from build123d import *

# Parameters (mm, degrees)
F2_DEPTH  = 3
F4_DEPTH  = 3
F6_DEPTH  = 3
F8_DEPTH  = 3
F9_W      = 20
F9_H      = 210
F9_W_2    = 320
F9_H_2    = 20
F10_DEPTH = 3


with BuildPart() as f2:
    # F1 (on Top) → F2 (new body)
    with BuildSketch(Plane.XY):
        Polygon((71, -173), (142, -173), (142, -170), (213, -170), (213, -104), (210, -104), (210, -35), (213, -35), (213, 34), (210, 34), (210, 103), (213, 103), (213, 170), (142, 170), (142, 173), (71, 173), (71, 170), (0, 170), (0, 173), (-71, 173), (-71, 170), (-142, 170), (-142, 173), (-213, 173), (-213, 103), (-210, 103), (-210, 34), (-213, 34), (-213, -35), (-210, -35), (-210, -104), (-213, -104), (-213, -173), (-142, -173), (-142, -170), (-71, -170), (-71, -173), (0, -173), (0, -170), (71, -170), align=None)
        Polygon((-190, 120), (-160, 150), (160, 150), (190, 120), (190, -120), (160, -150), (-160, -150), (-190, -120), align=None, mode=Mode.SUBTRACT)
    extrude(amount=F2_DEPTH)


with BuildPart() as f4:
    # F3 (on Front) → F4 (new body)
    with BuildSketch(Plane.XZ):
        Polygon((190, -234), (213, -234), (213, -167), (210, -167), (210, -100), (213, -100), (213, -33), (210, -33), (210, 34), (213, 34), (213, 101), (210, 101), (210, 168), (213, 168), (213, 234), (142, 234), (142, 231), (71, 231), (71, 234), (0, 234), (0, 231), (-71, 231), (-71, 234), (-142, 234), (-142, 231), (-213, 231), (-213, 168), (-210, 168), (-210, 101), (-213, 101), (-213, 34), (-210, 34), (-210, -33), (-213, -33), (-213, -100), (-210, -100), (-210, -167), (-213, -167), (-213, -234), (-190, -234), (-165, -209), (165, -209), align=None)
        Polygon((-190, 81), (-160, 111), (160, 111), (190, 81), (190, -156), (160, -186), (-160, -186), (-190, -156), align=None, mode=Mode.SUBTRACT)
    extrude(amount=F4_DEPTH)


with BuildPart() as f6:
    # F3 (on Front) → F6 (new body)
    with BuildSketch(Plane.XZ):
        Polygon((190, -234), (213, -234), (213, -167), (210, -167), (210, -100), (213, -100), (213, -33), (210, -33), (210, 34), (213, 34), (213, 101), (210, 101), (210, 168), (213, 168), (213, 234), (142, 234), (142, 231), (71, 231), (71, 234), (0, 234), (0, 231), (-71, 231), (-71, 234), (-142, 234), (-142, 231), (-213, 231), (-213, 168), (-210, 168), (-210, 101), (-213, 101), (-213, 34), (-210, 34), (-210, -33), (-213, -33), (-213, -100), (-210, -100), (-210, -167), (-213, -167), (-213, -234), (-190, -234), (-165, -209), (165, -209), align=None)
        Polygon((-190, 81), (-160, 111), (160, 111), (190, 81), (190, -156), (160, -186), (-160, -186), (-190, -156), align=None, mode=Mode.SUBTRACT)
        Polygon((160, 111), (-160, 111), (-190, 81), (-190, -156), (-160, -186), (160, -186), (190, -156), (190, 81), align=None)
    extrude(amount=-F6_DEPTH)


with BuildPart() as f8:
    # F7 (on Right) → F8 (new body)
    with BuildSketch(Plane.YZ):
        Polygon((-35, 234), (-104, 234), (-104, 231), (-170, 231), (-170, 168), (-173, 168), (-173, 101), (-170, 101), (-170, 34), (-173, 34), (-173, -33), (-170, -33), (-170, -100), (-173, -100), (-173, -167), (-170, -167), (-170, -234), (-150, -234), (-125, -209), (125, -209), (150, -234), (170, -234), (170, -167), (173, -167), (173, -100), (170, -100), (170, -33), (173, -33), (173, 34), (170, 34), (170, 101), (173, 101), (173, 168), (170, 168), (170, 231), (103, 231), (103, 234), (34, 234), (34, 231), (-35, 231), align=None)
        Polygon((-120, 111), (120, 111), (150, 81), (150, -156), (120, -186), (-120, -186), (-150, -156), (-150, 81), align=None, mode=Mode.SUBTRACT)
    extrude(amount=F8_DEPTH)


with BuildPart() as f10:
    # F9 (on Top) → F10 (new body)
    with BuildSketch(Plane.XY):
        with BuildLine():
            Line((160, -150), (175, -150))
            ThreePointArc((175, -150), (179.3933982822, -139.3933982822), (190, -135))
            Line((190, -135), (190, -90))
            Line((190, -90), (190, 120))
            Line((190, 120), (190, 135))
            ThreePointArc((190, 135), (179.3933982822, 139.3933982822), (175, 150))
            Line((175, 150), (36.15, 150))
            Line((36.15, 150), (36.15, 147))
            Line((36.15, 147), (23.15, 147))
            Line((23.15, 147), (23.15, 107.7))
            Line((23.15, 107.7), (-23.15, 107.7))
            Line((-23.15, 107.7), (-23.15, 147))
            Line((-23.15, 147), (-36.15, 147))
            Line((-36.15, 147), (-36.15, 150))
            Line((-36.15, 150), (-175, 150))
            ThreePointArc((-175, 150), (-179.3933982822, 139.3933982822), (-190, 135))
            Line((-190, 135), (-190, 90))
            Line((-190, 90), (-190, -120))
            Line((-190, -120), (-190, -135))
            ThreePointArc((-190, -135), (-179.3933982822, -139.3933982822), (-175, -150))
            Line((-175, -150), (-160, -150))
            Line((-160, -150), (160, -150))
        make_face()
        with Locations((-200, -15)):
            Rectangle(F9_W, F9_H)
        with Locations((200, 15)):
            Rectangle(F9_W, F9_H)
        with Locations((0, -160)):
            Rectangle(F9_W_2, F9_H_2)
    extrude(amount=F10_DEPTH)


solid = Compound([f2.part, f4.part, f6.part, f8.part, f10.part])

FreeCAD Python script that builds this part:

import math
import FreeCAD as App
import Part
import Sketcher
from FreeCAD import Vector
Q = App.Units.Quantity

doc = App.newDocument("Part")
body = doc.addObject("PartDesign::Body", "Body")

sketch1 = body.newObject("Sketcher::SketchObject", "Sketch")
sketch1.AttachmentSupport = (doc.getObject("XY_Plane"), [""])
sketch1.MapMode = "FlatFace"
sketch1.addGeometry([
    Part.LineSegment(Vector(71, -173, 0), Vector(142, -173, 0)),
    Part.LineSegment(Vector(142, -173, 0), Vector(142, -170, 0)),
    Part.LineSegment(Vector(142, -170, 0), Vector(213, -170, 0)),
    Part.LineSegment(Vector(213, -170, 0), Vector(213, -104, 0)),
    Part.LineSegment(Vector(213, -104, 0), Vector(210, -104, 0)),
    Part.LineSegment(Vector(210, -104, 0), Vector(210, -35, 0)),
    Part.LineSegment(Vector(210, -35, 0), Vector(213, -35, 0)),
    Part.LineSegment(Vector(213, -35, 0), Vector(213, 34, 0)),
    Part.LineSegment(Vector(213, 34, 0), Vector(210, 34, 0)),
    Part.LineSegment(Vector(210, 34, 0), Vector(210, 103, 0)),
    Part.LineSegment(Vector(210, 103, 0), Vector(213, 103, 0)),
    Part.LineSegment(Vector(213, 103, 0), Vector(213, 170, 0)),
    Part.LineSegment(Vector(213, 170, 0), Vector(142, 170, 0)),
    Part.LineSegment(Vector(142, 170, 0), Vector(142, 173, 0)),
    Part.LineSegment(Vector(142, 173, 0), Vector(71, 173, 0)),
    Part.LineSegment(Vector(71, 173, 0), Vector(71, 170, 0)),
    Part.LineSegment(Vector(71, 170, 0), Vector(0, 170, 0)),
    Part.LineSegment(Vector(0, 170, 0), Vector(0, 173, 0)),
    Part.LineSegment(Vector(0, 173, 0), Vector(-71, 173, 0)),
    Part.LineSegment(Vector(-71, 173, 0), Vector(-71, 170, 0)),
    Part.LineSegment(Vector(-71, 170, 0), Vector(-142, 170, 0)),
    Part.LineSegment(Vector(-142, 170, 0), Vector(-142, 173, 0)),
    Part.LineSegment(Vector(-142, 173, 0), Vector(-213, 173, 0)),
    Part.LineSegment(Vector(-213, 173, 0), Vector(-213, 103, 0)),
    Part.LineSegment(Vector(-213, 103, 0), Vector(-210, 103, 0)),
    Part.LineSegment(Vector(-210, 103, 0), Vector(-210, 34, 0)),
    Part.LineSegment(Vector(-210, 34, 0), Vector(-213, 34, 0)),
    Part.LineSegment(Vector(-213, 34, 0), Vector(-213, -35, 0)),
    Part.LineSegment(Vector(-213, -35, 0), Vector(-210, -35, 0)),
    Part.LineSegment(Vector(-210, -35, 0), Vector(-210, -104, 0)),
    Part.LineSegment(Vector(-210, -104, 0), Vector(-213, -104, 0)),
    Part.LineSegment(Vector(-213, -104, 0), Vector(-213, -173, 0)),
    Part.LineSegment(Vector(-213, -173, 0), Vector(-142, -173, 0)),
    Part.LineSegment(Vector(-142, -173, 0), Vector(-142, -170, 0)),
    Part.LineSegment(Vector(-142, -170, 0), Vector(-71, -170, 0)),
    Part.LineSegment(Vector(-71, -170, 0), Vector(-71, -173, 0)),
    Part.LineSegment(Vector(-71, -173, 0), Vector(0, -173, 0)),
    Part.LineSegment(Vector(0, -173, 0), Vector(0, -170, 0)),
    Part.LineSegment(Vector(0, -170, 0), Vector(71, -170, 0)),
    Part.LineSegment(Vector(71, -170, 0), Vector(71, -173, 0)),
    Part.LineSegment(Vector(-190, -120, 0), Vector(-190, 120, 0)),
    Part.LineSegment(Vector(-190, 120, 0), Vector(-160, 150, 0)),
    Part.LineSegment(Vector(-160, 150, 0), Vector(160, 150, 0)),
    Part.LineSegment(Vector(160, 150, 0), Vector(190, 120, 0)),
    Part.LineSegment(Vector(190, 120, 0), Vector(190, -120, 0)),
    Part.LineSegment(Vector(190, -120, 0), Vector(160, -150, 0)),
    Part.LineSegment(Vector(160, -150, 0), Vector(-160, -150, 0)),
    Part.LineSegment(Vector(-160, -150, 0), Vector(-190, -120, 0)),
], False)
sketch1.addConstraint([
    Sketcher.Constraint("Coincident", 0, 2, 1, 1),
    Sketcher.Constraint("Coincident", 1, 2, 2, 1),
    Sketcher.Constraint("Coincident", 2, 2, 3, 1),
    Sketcher.Constraint("Coincident", 3, 2, 4, 1),
    Sketcher.Constraint("Coincident", 4, 2, 5, 1),
    Sketcher.Constraint("Coincident", 5, 2, 6, 1),
    Sketcher.Constraint("Coincident", 6, 2, 7, 1),
    Sketcher.Constraint("Coincident", 7, 2, 8, 1),
    Sketcher.Constraint("Coincident", 8, 2, 9, 1),
    Sketcher.Constraint("Coincident", 9, 2, 10, 1),
    Sketcher.Constraint("Coincident", 10, 2, 11, 1),
    Sketcher.Constraint("Coincident", 11, 2, 12, 1),
    Sketcher.Constraint("Coincident", 12, 2, 13, 1),
    Sketcher.Constraint("Coincident", 13, 2, 14, 1),
    Sketcher.Constraint("Coincident", 14, 2, 15, 1),
    Sketcher.Constraint("Coincident", 15, 2, 16, 1),
    Sketcher.Constraint("Coincident", 16, 2, 17, 1),
    Sketcher.Constraint("Coincident", 17, 2, 18, 1),
    Sketcher.Constraint("Coincident", 18, 2, 19, 1),
    Sketcher.Constraint("Coincident", 19, 2, 20, 1),
    Sketcher.Constraint("Coincident", 20, 2, 21, 1),
    Sketcher.Constraint("Coincident", 21, 2, 22, 1),
    Sketcher.Constraint("Coincident", 22, 2, 23, 1),
    Sketcher.Constraint("Coincident", 23, 2, 24, 1),
    Sketcher.Constraint("Coincident", 24, 2, 25, 1),
    Sketcher.Constraint("Coincident", 25, 2, 26, 1),
    Sketcher.Constraint("Coincident", 26, 2, 27, 1),
    Sketcher.Constraint("Coincident", 27, 2, 28, 1),
    Sketcher.Constraint("Coincident", 28, 2, 29, 1),
    Sketcher.Constraint("Coincident", 29, 2, 30, 1),
    Sketcher.Constraint("Coincident", 30, 2, 31, 1),
    Sketcher.Constraint("Coincident", 31, 2, 32, 1),
    Sketcher.Constraint("Coincident", 32, 2, 33, 1),
    Sketcher.Constraint("Coincident", 33, 2, 34, 1),
    Sketcher.Constraint("Coincident", 34, 2, 35, 1),
    Sketcher.Constraint("Coincident", 35, 2, 36, 1),
    Sketcher.Constraint("Coincident", 36, 2, 37, 1),
    Sketcher.Constraint("Coincident", 37, 2, 38, 1),
    Sketcher.Constraint("Coincident", 38, 2, 39, 1),
    Sketcher.Constraint("Coincident", 39, 2, 0, 1),
    Sketcher.Constraint("Coincident", 40, 2, 41, 1),
    Sketcher.Constraint("Coincident", 41, 2, 42, 1),
    Sketcher.Constraint("Coincident", 42, 2, 43, 1),
    Sketcher.Constraint("Coincident", 43, 2, 44, 1),
    Sketcher.Constraint("Coincident", 44, 2, 45, 1),
    Sketcher.Constraint("Coincident", 45, 2, 46, 1),
    Sketcher.Constraint("Coincident", 46, 2, 47, 1),
    Sketcher.Constraint("Coincident", 47, 2, 40, 1),
    Sketcher.Constraint("Horizontal", 0),
    Sketcher.Constraint("Vertical", 1),
    Sketcher.Constraint("Horizontal", 2),
    Sketcher.Constraint("Vertical", 3),
    Sketcher.Constraint("Horizontal", 4),
    Sketcher.Constraint("Vertical", 5),
    Sketcher.Constraint("Horizontal", 6),
    Sketcher.Constraint("Vertical", 7),
    Sketcher.Constraint("Horizontal", 8),
    Sketcher.Constraint("Vertical", 9),
    Sketcher.Constraint("Horizontal", 10),
    Sketcher.Constraint("Vertical", 11),
    Sketcher.Constraint("Horizontal", 12),
    Sketcher.Constraint("Vertical", 13),
    Sketcher.Constraint("Horizontal", 14),
    Sketcher.Constraint("Vertical", 15),
    Sketcher.Constraint("Horizontal", 16),
    Sketcher.Constraint("Vertical", 17),
    Sketcher.Constraint("Horizontal", 18),
    Sketcher.Constraint("Vertical", 19),
    Sketcher.Constraint("Horizontal", 20),
    Sketcher.Constraint("Vertical", 21),
    Sketcher.Constraint("Horizontal", 22),
    Sketcher.Constraint("Vertical", 23),
    Sketcher.Constraint("Horizontal", 24),
    Sketcher.Constraint("Vertical", 25),
    Sketcher.Constraint("Horizontal", 26),
    Sketcher.Constraint("Vertical", 27),
    Sketcher.Constraint("Horizontal", 28),
    Sketcher.Constraint("Vertical", 29),
    Sketcher.Constraint("Horizontal", 30),
    Sketcher.Constraint("Vertical", 31),
    Sketcher.Constraint("Horizontal", 32),
    Sketcher.Constraint("Vertical", 33),
    Sketcher.Constraint("Horizontal", 34),
    Sketcher.Constraint("Vertical", 35),
    Sketcher.Constraint("Horizontal", 36),
    Sketcher.Constraint("Vertical", 37),
    Sketcher.Constraint("Horizontal", 38),
    Sketcher.Constraint("Vertical", 39),
    Sketcher.Constraint("Vertical", 40),
    Sketcher.Constraint("Horizontal", 42),
    Sketcher.Constraint("Vertical", 44),
    Sketcher.Constraint("Horizontal", 46),
    Sketcher.Constraint("Symmetric", 1, 2, 20, 2, -1, 1),
    Sketcher.Constraint("Symmetric", 13, 2, 32, 2, -1, 1),
    Sketcher.Constraint("Symmetric", 15, 2, 34, 2, -1, 1),
    Sketcher.Constraint("Symmetric", 17, 2, 36, 2, -1, 1),
    Sketcher.Constraint("Symmetric", 19, 2, 38, 2, -1, 1),
    Sketcher.Constraint("Symmetric", 40, 2, 44, 2, -1, 1),
    Sketcher.Constraint("Symmetric", 41, 2, 45, 2, -1, 1),
    Sketcher.Constraint("Symmetric", 14, 2, 18, 2, -2),
    Sketcher.Constraint("Symmetric", 12, 2, 20, 2, -2),
    Sketcher.Constraint("Symmetric", 10, 2, 23, 2, -2),
    Sketcher.Constraint("Symmetric", 8, 2, 25, 2, -2),
    Sketcher.Constraint("Symmetric", 6, 2, 27, 2, -2),
    Sketcher.Constraint("Symmetric", 4, 2, 29, 2, -2),
    Sketcher.Constraint("Symmetric", 22, 2, 31, 2, -1),
    Sketcher.Constraint("Symmetric", 16, 2, 37, 2, -1),
    Sketcher.Constraint("Perpendicular", 41, 43),
    Sketcher.Constraint("Perpendicular", 45, 47),
    Sketcher.Constraint("Horizontal", 0, 2, 31, 2),
    Sketcher.Constraint("Horizontal", 40, 2, 43, 2),
    Sketcher.Constraint("Horizontal", 44, 2, 47, 2),
    Sketcher.Constraint("Vertical", 3, 2, 6, 2),
    Sketcher.Constraint("Vertical", 5, 2, 8, 2),
    Sketcher.Constraint("Vertical", 7, 2, 10, 2),
    Sketcher.Constraint("Vertical", 42, 2, 45, 2),
    Sketcher.Constraint("Equal", 0, 2),
    Sketcher.Constraint("Equal", 14, 16),
    Sketcher.Constraint("Equal", 30, 1),
    Sketcher.Constraint("Equal", 5, 7),
    Sketcher.Constraint("Equal", 7, 9),
    Sketcher.Constraint("Equal", 29, 31),
    Sketcher.Constraint("DistanceX", 0, 1, 0, 2, Q("71 mm")),
    Sketcher.Constraint("DistanceX", 4, 2, 4, 1, Q("3 mm")),
    Sketcher.Constraint("DistanceX", 42, 1, 42, 2, Q("320 mm")),
    Sketcher.Constraint("DistanceY", 3, 1, 3, 2, Q("66 mm")),
    Sketcher.Constraint("DistanceY", 11, 1, 11, 2, Q("67 mm")),
    Sketcher.Constraint("DistanceY", 40, 1, 40, 2, Q("240 mm")),
    Sketcher.Constraint("DistanceX", 40, 2, -1, 1, Q("190 mm")),
])
pad1 = body.newObject("PartDesign::Pad", "Pad")
pad1.Profile = sketch1
pad1.Length = 3
body2 = doc.addObject("PartDesign::Body", "Body001")

sketch2 = body2.newObject("Sketcher::SketchObject", "Sketch001")
sketch2.AttachmentSupport = (doc.getObject("XZ_Plane001"), [""])
sketch2.MapMode = "FlatFace"
sketch2.addGeometry([
    Part.LineSegment(Vector(190, -234, 0), Vector(213, -234, 0)),
    Part.LineSegment(Vector(213, -234, 0), Vector(213, -167, 0)),
    Part.LineSegment(Vector(213, -167, 0), Vector(210, -167, 0)),
    Part.LineSegment(Vector(210, -167, 0), Vector(210, -100, 0)),
    Part.LineSegment(Vector(210, -100, 0), Vector(213, -100, 0)),
    Part.LineSegment(Vector(213, -100, 0), Vector(213, -33, 0)),
    Part.LineSegment(Vector(213, -33, 0), Vector(210, -33, 0)),
    Part.LineSegment(Vector(210, -33, 0), Vector(210, 34, 0)),
    Part.LineSegment(Vector(210, 34, 0), Vector(213, 34, 0)),
    Part.LineSegment(Vector(213, 34, 0), Vector(213, 101, 0)),
    Part.LineSegment(Vector(213, 101, 0), Vector(210, 101, 0)),
    Part.LineSegment(Vector(210, 101, 0), Vector(210, 168, 0)),
    Part.LineSegment(Vector(210, 168, 0), Vector(213, 168, 0)),
    Part.LineSegment(Vector(213, 168, 0), Vector(213, 234, 0)),
    Part.LineSegment(Vector(213, 234, 0), Vector(142, 234, 0)),
    Part.LineSegment(Vector(142, 234, 0), Vector(142, 231, 0)),
    Part.LineSegment(Vector(142, 231, 0), Vector(71, 231, 0)),
    Part.LineSegment(Vector(71, 231, 0), Vector(71, 234, 0)),
    Part.LineSegment(Vector(71, 234, 0), Vector(0, 234, 0)),
    Part.LineSegment(Vector(0, 234, 0), Vector(0, 231, 0)),
    Part.LineSegment(Vector(0, 231, 0), Vector(-71, 231, 0)),
    Part.LineSegment(Vector(-71, 231, 0), Vector(-71, 234, 0)),
    Part.LineSegment(Vector(-71, 234, 0), Vector(-142, 234, 0)),
    Part.LineSegment(Vector(-142, 234, 0), Vector(-142, 231, 0)),
    Part.LineSegment(Vector(-142, 231, 0), Vector(-213, 231, 0)),
    Part.LineSegment(Vector(-213, 231, 0), Vector(-213, 168, 0)),
    Part.LineSegment(Vector(-213, 168, 0), Vector(-210, 168, 0)),
    Part.LineSegment(Vector(-210, 168, 0), Vector(-210, 101, 0)),
    Part.LineSegment(Vector(-210, 101, 0), Vector(-213, 101, 0)),
    Part.LineSegment(Vector(-213, 101, 0), Vector(-213, 34, 0)),
    Part.LineSegment(Vector(-213, 34, 0), Vector(-210, 34, 0)),
    Part.LineSegment(Vector(-210, 34, 0), Vector(-210, -33, 0)),
    Part.LineSegment(Vector(-210, -33, 0), Vector(-213, -33, 0)),
    Part.LineSegment(Vector(-213, -33, 0), Vector(-213, -100, 0)),
    Part.LineSegment(Vector(-213, -100, 0), Vector(-210, -100, 0)),
    Part.LineSegment(Vector(-210, -100, 0), Vector(-210, -167, 0)),
    Part.LineSegment(Vector(-210, -167, 0), Vector(-213, -167, 0)),
    Part.LineSegment(Vector(-213, -167, 0), Vector(-213, -234, 0)),
    Part.LineSegment(Vector(-213, -234, 0), Vector(-190, -234, 0)),
    Part.LineSegment(Vector(-190, -234, 0), Vector(-165, -209, 0)),
    Part.LineSegment(Vector(-165, -209, 0), Vector(165, -209, 0)),
    Part.LineSegment(Vector(165, -209, 0), Vector(190, -234, 0)),
    Part.LineSegment(Vector(-190, -156, 0), Vector(-190, 81, 0)),
    Part.LineSegment(Vector(-190, 81, 0), Vector(-160, 111, 0)),
    Part.LineSegment(Vector(-160, 111, 0), Vector(160, 111, 0)),
    Part.LineSegment(Vector(160, 111, 0), Vector(190, 81, 0)),
    Part.LineSegment(Vector(190, 81, 0), Vector(190, -156, 0)),
    Part.LineSegment(Vector(190, -156, 0), Vector(160, -186, 0)),
    Part.LineSegment(Vector(160, -186, 0), Vector(-160, -186, 0)),
    Part.LineSegment(Vector(-160, -186, 0), Vector(-190, -156, 0)),
], False)
sketch2.addConstraint([
    Sketcher.Constraint("Coincident", 0, 2, 1, 1),
    Sketcher.Constraint("Coincident", 1, 2, 2, 1),
    Sketcher.Constraint("Coincident", 2, 2, 3, 1),
    Sketcher.Constraint("Coincident", 3, 2, 4, 1),
    Sketcher.Constraint("Coincident", 4, 2, 5, 1),
    Sketcher.Constraint("Coincident", 5, 2, 6, 1),
    Sketcher.Constraint("Coincident", 6, 2, 7, 1),
    Sketcher.Constraint("Coincident", 7, 2, 8, 1),
    Sketcher.Constraint("Coincident", 8, 2, 9, 1),
    Sketcher.Constraint("Coincident", 9, 2, 10, 1),
    Sketcher.Constraint("Coincident", 10, 2, 11, 1),
    Sketcher.Constraint("Coincident", 11, 2, 12, 1),
    Sketcher.Constraint("Coincident", 12, 2, 13, 1),
    Sketcher.Constraint("Coincident", 13, 2, 14, 1),
    Sketcher.Constraint("Coincident", 14, 2, 15, 1),
    Sketcher.Constraint("Coincident", 15, 2, 16, 1),
    Sketcher.Constraint("Coincident", 16, 2, 17, 1),
    Sketcher.Constraint("Coincident", 17, 2, 18, 1),
    Sketcher.Constraint("Coincident", 18, 2, 19, 1),
    Sketcher.Constraint("Coincident", 19, 2, 20, 1),
    Sketcher.Constraint("Coincident", 20, 2, 21, 1),
    Sketcher.Constraint("Coincident", 21, 2, 22, 1),
    Sketcher.Constraint("Coincident", 22, 2, 23, 1),
    Sketcher.Constraint("Coincident", 23, 2, 24, 1),
    Sketcher.Constraint("Coincident", 24, 2, 25, 1),
    Sketcher.Constraint("Coincident", 25, 2, 26, 1),
    Sketcher.Constraint("Coincident", 26, 2, 27, 1),
    Sketcher.Constraint("Coincident", 27, 2, 28, 1),
    Sketcher.Constraint("Coincident", 28, 2, 29, 1),
    Sketcher.Constraint("Coincident", 29, 2, 30, 1),
    Sketcher.Constraint("Coincident", 30, 2, 31, 1),
    Sketcher.Constraint("Coincident", 31, 2, 32, 1),
    Sketcher.Constraint("Coincident", 32, 2, 33, 1),
    Sketcher.Constraint("Coincident", 33, 2, 34, 1),
    Sketcher.Constraint("Coincident", 34, 2, 35, 1),
    Sketcher.Constraint("Coincident", 35, 2, 36, 1),
    Sketcher.Constraint("Coincident", 36, 2, 37, 1),
    Sketcher.Constraint("Coincident", 37, 2, 38, 1),
    Sketcher.Constraint("Coincident", 38, 2, 39, 1),
    Sketcher.Constraint("Coincident", 39, 2, 40, 1),
    Sketcher.Constraint("Coincident", 40, 2, 41, 1),
    Sketcher.Constraint("Coincident", 41, 2, 0, 1),
    Sketcher.Constraint("Coincident", 42, 2, 43, 1),
    Sketcher.Constraint("Coincident", 43, 2, 44, 1),
    Sketcher.Constraint("Coincident", 44, 2, 45, 1),
    Sketcher.Constraint("Coincident", 45, 2, 46, 1),
    Sketcher.Constraint("Coincident", 46, 2, 47, 1),
    Sketcher.Constraint("Coincident", 47, 2, 48, 1),
    Sketcher.Constraint("Coincident", 48, 2, 49, 1),
    Sketcher.Constraint("Coincident", 49, 2, 42, 1),
    Sketcher.Constraint("Horizontal", 0),
    Sketcher.Constraint("Vertical", 1),
    Sketcher.Constraint("Horizontal", 2),
    Sketcher.Constraint("Vertical", 3),
    Sketcher.Constraint("Horizontal", 4),
    Sketcher.Constraint("Vertical", 5),
    Sketcher.Constraint("Horizontal", 6),
    Sketcher.Constraint("Vertical", 7),
    Sketcher.Constraint("Horizontal", 8),
    Sketcher.Constraint("Vertical", 9),
    Sketcher.Constraint("Horizontal", 10),
    Sketcher.Constraint("Vertical", 11),
    Sketcher.Constraint("Horizontal", 12),
    Sketcher.Constraint("Vertical", 13),
    Sketcher.Constraint("Horizontal", 14),
    Sketcher.Constraint("Vertical", 15),
    Sketcher.Constraint("Horizontal", 16),
    Sketcher.Constraint("Vertical", 17),
    Sketcher.Constraint("Horizontal", 18),
    Sketcher.Constraint("Vertical", 19),
    Sketcher.Constraint("Horizontal", 20),
    Sketcher.Constraint("Vertical", 21),
    Sketcher.Constraint("Horizontal", 22),
    Sketcher.Constraint("Vertical", 23),
    Sketcher.Constraint("Horizontal", 24),
    Sketcher.Constraint("Vertical", 25),
    Sketcher.Constraint("Horizontal", 26),
    Sketcher.Constraint("Vertical", 27),
    Sketcher.Constraint("Horizontal", 28),
    Sketcher.Constraint("Vertical", 29),
    Sketcher.Constraint("Horizontal", 30),
    Sketcher.Constraint("Vertical", 31),
    Sketcher.Constraint("Horizontal", 32),
    Sketcher.Constraint("Vertical", 33),
    Sketcher.Constraint("Horizontal", 34),
    Sketcher.Constraint("Vertical", 35),
    Sketcher.Constraint("Horizontal", 36),
    Sketcher.Constraint("Vertical", 37),
    Sketcher.Constraint("Horizontal", 38),
    Sketcher.Constraint("Horizontal", 40),
    Sketcher.Constraint("Vertical", 42),
    Sketcher.Constraint("Horizontal", 44),
    Sketcher.Constraint("Vertical", 46),
    Sketcher.Constraint("Horizontal", 48),
    Sketcher.Constraint("Symmetric", 13, 2, 37, 2, -1, 1),
    Sketcher.Constraint("Symmetric", 16, 2, 20, 2, -2),
    Sketcher.Constraint("Symmetric", 14, 2, 22, 2, -2),
    Sketcher.Constraint("Symmetric", 12, 2, 25, 2, -2),
    Sketcher.Constraint("Symmetric", 10, 2, 27, 2, -2),
    Sketcher.Constraint("Symmetric", 8, 2, 29, 2, -2),
    Sketcher.Constraint("Symmetric", 6, 2, 31, 2, -2),
    Sketcher.Constraint("Symmetric", 4, 2, 33, 2, -2),
    Sketcher.Constraint("Symmetric", 2, 2, 35, 2, -2),
    Sketcher.Constraint("Symmetric", 0, 2, 37, 2, -2),
    Sketcher.Constraint("Symmetric", 42, 2, 45, 2, -2),
    Sketcher.Constraint("PointOnObject", 18, 2, -2),
    Sketcher.Constraint("Perpendicular", 39, 41),
    Sketcher.Constraint("Perpendicular", 41, 43),
    Sketcher.Constraint("Perpendicular", 43, 45),
    Sketcher.Constraint("Perpendicular", 45, 47),
    Sketcher.Constraint("Perpendicular", 47, 49),
    Sketcher.Constraint("Horizontal", 14, 2, 17, 2),
    Sketcher.Constraint("Horizontal", 20, 2, 23, 2),
    Sketcher.Constraint("Horizontal", 46, 2, 49, 2),
    Sketcher.Constraint("Vertical", 1, 2, 4, 2),
    Sketcher.Constraint("Vertical", 3, 2, 6, 2),
    Sketcher.Constraint("Vertical", 5, 2, 8, 2),
    Sketcher.Constraint("Vertical", 7, 2, 10, 2),
    Sketcher.Constraint("Vertical", 38, 2, 42, 2),
    Sketcher.Constraint("Vertical", 41, 2, 45, 2),
    Sketcher.Constraint("Vertical", 44, 2, 47, 2),
    Sketcher.Constraint("Vertical", 43, 2, 48, 2),
    Sketcher.Constraint("Equal", 14, 16),
    Sketcher.Constraint("Equal", 16, 18),
    Sketcher.Constraint("Equal", 1, 3),
    Sketcher.Constraint("Equal", 3, 5),
    Sketcher.Constraint("Equal", 5, 7),
    Sketcher.Constraint("Equal", 7, 9),
    Sketcher.Constraint("Equal", 9, 11),
    Sketcher.Constraint("Equal", 36, 15),
    Sketcher.Constraint("DistanceX", 0, 1, 0, 2, Q("23 mm")),
    Sketcher.Constraint("DistanceX", 2, 2, 2, 1, Q("3 mm")),
    Sketcher.Constraint("DistanceX", 14, 2, 14, 1, Q("71 mm")),
    Sketcher.Constraint("DistanceX", 40, 1, 40, 2, Q("330 mm")),
    Sketcher.Constraint("DistanceX", 44, 1, 44, 2, Q("320 mm")),
    Sketcher.Constraint("DistanceY", 1, 1, 1, 2, Q("67 mm")),
    Sketcher.Constraint("DistanceY", 13, 1, 13, 2, Q("66 mm")),
    Sketcher.Constraint("DistanceY", 42, 1, 42, 2, Q("237 mm")),
    Sketcher.Constraint("DistanceY", -1, 1, 42, 2, Q("81 mm")),
])
pad2 = body2.newObject("PartDesign::Pad", "Pad001")
pad2.Profile = sketch2
pad2.Length = 3
body3 = doc.addObject("PartDesign::Body", "Body002")

sketch3 = body3.newObject("Sketcher::SketchObject", "Sketch002")
sketch3.AttachmentSupport = (doc.getObject("XZ_Plane002"), [""])
sketch3.MapMode = "FlatFace"
sketch3.addGeometry([
    Part.LineSegment(Vector(190, -234, 0), Vector(213, -234, 0)),
    Part.LineSegment(Vector(213, -234, 0), Vector(213, -167, 0)),
    Part.LineSegment(Vector(213, -167, 0), Vector(210, -167, 0)),
    Part.LineSegment(Vector(210, -167, 0), Vector(210, -100, 0)),
    Part.LineSegment(Vector(210, -100, 0), Vector(213, -100, 0)),
    Part.LineSegment(Vector(213, -100, 0), Vector(213, -33, 0)),
    Part.LineSegment(Vector(213, -33, 0), Vector(210, -33, 0)),
    Part.LineSegment(Vector(210, -33, 0), Vector(210, 34, 0)),
    Part.LineSegment(Vector(210, 34, 0), Vector(213, 34, 0)),
    Part.LineSegment(Vector(213, 34, 0), Vector(213, 101, 0)),
    Part.LineSegment(Vector(213, 101, 0), Vector(210, 101, 0)),
    Part.LineSegment(Vector(210, 101, 0), Vector(210, 168, 0)),
    Part.LineSegment(Vector(210, 168, 0), Vector(213, 168, 0)),
    Part.LineSegment(Vector(213, 168, 0), Vector(213, 234, 0)),
    Part.LineSegment(Vector(213, 234, 0), Vector(142, 234, 0)),
    Part.LineSegment(Vector(142, 234, 0), Vector(142, 231, 0)),
    Part.LineSegment(Vector(142, 231, 0), Vector(71, 231, 0)),
    Part.LineSegment(Vector(71, 231, 0), Vector(71, 234, 0)),
    Part.LineSegment(Vector(71, 234, 0), Vector(0, 234, 0)),
    Part.LineSegment(Vector(0, 234, 0), Vector(0, 231, 0)),
    Part.LineSegment(Vector(0, 231, 0), Vector(-71, 231, 0)),
    Part.LineSegment(Vector(-71, 231, 0), Vector(-71, 234, 0)),
    Part.LineSegment(Vector(-71, 234, 0), Vector(-142, 234, 0)),
    Part.LineSegment(Vector(-142, 234, 0), Vector(-142, 231, 0)),
    Part.LineSegment(Vector(-142, 231, 0), Vector(-213, 231, 0)),
    Part.LineSegment(Vector(-213, 231, 0), Vector(-213, 168, 0)),
    Part.LineSegment(Vector(-213, 168, 0), Vector(-210, 168, 0)),
    Part.LineSegment(Vector(-210, 168, 0), Vector(-210, 101, 0)),
    Part.LineSegment(Vector(-210, 101, 0), Vector(-213, 101, 0)),
    Part.LineSegment(Vector(-213, 101, 0), Vector(-213, 34, 0)),
    Part.LineSegment(Vector(-213, 34, 0), Vector(-210, 34, 0)),
    Part.LineSegment(Vector(-210, 34, 0), Vector(-210, -33, 0)),
    Part.LineSegment(Vector(-210, -33, 0), Vector(-213, -33, 0)),
    Part.LineSegment(Vector(-213, -33, 0), Vector(-213, -100, 0)),
    Part.LineSegment(Vector(-213, -100, 0), Vector(-210, -100, 0)),
    Part.LineSegment(Vector(-210, -100, 0), Vector(-210, -167, 0)),
    Part.LineSegment(Vector(-210, -167, 0), Vector(-213, -167, 0)),
    Part.LineSegment(Vector(-213, -167, 0), Vector(-213, -234, 0)),
    Part.LineSegment(Vector(-213, -234, 0), Vector(-190, -234, 0)),
    Part.LineSegment(Vector(-190, -234, 0), Vector(-165, -209, 0)),
    Part.LineSegment(Vector(-165, -209, 0), Vector(165, -209, 0)),
    Part.LineSegment(Vector(165, -209, 0), Vector(190, -234, 0)),
], False)
sketch3.addConstraint([
    Sketcher.Constraint("Coincident", 0, 2, 1, 1),
    Sketcher.Constraint("Coincident", 1, 2, 2, 1),
    Sketcher.Constraint("Coincident", 2, 2, 3, 1),
    Sketcher.Constraint("Coincident", 3, 2, 4, 1),
    Sketcher.Constraint("Coincident", 4, 2, 5, 1),
    Sketcher.Constraint("Coincident", 5, 2, 6, 1),
    Sketcher.Constraint("Coincident", 6, 2, 7, 1),
    Sketcher.Constraint("Coincident", 7, 2, 8, 1),
    Sketcher.Constraint("Coincident", 8, 2, 9, 1),
    Sketcher.Constraint("Coincident", 9, 2, 10, 1),
    Sketcher.Constraint("Coincident", 10, 2, 11, 1),
    Sketcher.Constraint("Coincident", 11, 2, 12, 1),
    Sketcher.Constraint("Coincident", 12, 2, 13, 1),
    Sketcher.Constraint("Coincident", 13, 2, 14, 1),
    Sketcher.Constraint("Coincident", 14, 2, 15, 1),
    Sketcher.Constraint("Coincident", 15, 2, 16, 1),
    Sketcher.Constraint("Coincident", 16, 2, 17, 1),
    Sketcher.Constraint("Coincident", 17, 2, 18, 1),
    Sketcher.Constraint("Coincident", 18, 2, 19, 1),
    Sketcher.Constraint("Coincident", 19, 2, 20, 1),
    Sketcher.Constraint("Coincident", 20, 2, 21, 1),
    Sketcher.Constraint("Coincident", 21, 2, 22, 1),
    Sketcher.Constraint("Coincident", 22, 2, 23, 1),
    Sketcher.Constraint("Coincident", 23, 2, 24, 1),
    Sketcher.Constraint("Coincident", 24, 2, 25, 1),
    Sketcher.Constraint("Coincident", 25, 2, 26, 1),
    Sketcher.Constraint("Coincident", 26, 2, 27, 1),
    Sketcher.Constraint("Coincident", 27, 2, 28, 1),
    Sketcher.Constraint("Coincident", 28, 2, 29, 1),
    Sketcher.Constraint("Coincident", 29, 2, 30, 1),
    Sketcher.Constraint("Coincident", 30, 2, 31, 1),
    Sketcher.Constraint("Coincident", 31, 2, 32, 1),
    Sketcher.Constraint("Coincident", 32, 2, 33, 1),
    Sketcher.Constraint("Coincident", 33, 2, 34, 1),
    Sketcher.Constraint("Coincident", 34, 2, 35, 1),
    Sketcher.Constraint("Coincident", 35, 2, 36, 1),
    Sketcher.Constraint("Coincident", 36, 2, 37, 1),
    Sketcher.Constraint("Coincident", 37, 2, 38, 1),
    Sketcher.Constraint("Coincident", 38, 2, 39, 1),
    Sketcher.Constraint("Coincident", 39, 2, 40, 1),
    Sketcher.Constraint("Coincident", 40, 2, 41, 1),
    Sketcher.Constraint("Coincident", 41, 2, 0, 1),
    Sketcher.Constraint("Horizontal", 0),
    Sketcher.Constraint("Vertical", 1),
    Sketcher.Constraint("Horizontal", 2),
    Sketcher.Constraint("Vertical", 3),
    Sketcher.Constraint("Horizontal", 4),
    Sketcher.Constraint("Vertical", 5),
    Sketcher.Constraint("Horizontal", 6),
    Sketcher.Constraint("Vertical", 7),
    Sketcher.Constraint("Horizontal", 8),
    Sketcher.Constraint("Vertical", 9),
    Sketcher.Constraint("Horizontal", 10),
    Sketcher.Constraint("Vertical", 11),
    Sketcher.Constraint("Horizontal", 12),
    Sketcher.Constraint("Vertical", 13),
    Sketcher.Constraint("Horizontal", 14),
    Sketcher.Constraint("Vertical", 15),
    Sketcher.Constraint("Horizontal", 16),
    Sketcher.Constraint("Vertical", 17),
    Sketcher.Constraint("Horizontal", 18),
    Sketcher.Constraint("Vertical", 19),
    Sketcher.Constraint("Horizontal", 20),
    Sketcher.Constraint("Vertical", 21),
    Sketcher.Constraint("Horizontal", 22),
    Sketcher.Constraint("Vertical", 23),
    Sketcher.Constraint("Horizontal", 24),
    Sketcher.Constraint("Vertical", 25),
    Sketcher.Constraint("Horizontal", 26),
    Sketcher.Constraint("Vertical", 27),
    Sketcher.Constraint("Horizontal", 28),
    Sketcher.Constraint("Vertical", 29),
    Sketcher.Constraint("Horizontal", 30),
    Sketcher.Constraint("Vertical", 31),
    Sketcher.Constraint("Horizontal", 32),
    Sketcher.Constraint("Vertical", 33),
    Sketcher.Constraint("Horizontal", 34),
    Sketcher.Constraint("Vertical", 35),
    Sketcher.Constraint("Horizontal", 36),
    Sketcher.Constraint("Vertical", 37),
    Sketcher.Constraint("Horizontal", 38),
    Sketcher.Constraint("Horizontal", 40),
    Sketcher.Constraint("Symmetric", 13, 2, 37, 2, -1, 1),
    Sketcher.Constraint("Symmetric", 16, 2, 20, 2, -2),
    Sketcher.Constraint("Symmetric", 14, 2, 22, 2, -2),
    Sketcher.Constraint("Symmetric", 12, 2, 25, 2, -2),
    Sketcher.Constraint("Symmetric", 10, 2, 27, 2, -2),
    Sketcher.Constraint("Symmetric", 8, 2, 29, 2, -2),
    Sketcher.Constraint("Symmetric", 6, 2, 31, 2, -2),
    Sketcher.Constraint("Symmetric", 4, 2, 33, 2, -2),
    Sketcher.Constraint("Symmetric", 2, 2, 35, 2, -2),
    Sketcher.Constraint("Symmetric", 0, 2, 37, 2, -2),
    Sketcher.Constraint("PointOnObject", 18, 2, -2),
    Sketcher.Constraint("Perpendicular", 39, 41),
    Sketcher.Constraint("Horizontal", 14, 2, 17, 2),
    Sketcher.Constraint("Horizontal", 20, 2, 23, 2),
    Sketcher.Constraint("Vertical", 1, 2, 4, 2),
    Sketcher.Constraint("Vertical", 3, 2, 6, 2),
    Sketcher.Constraint("Vertical", 5, 2, 8, 2),
    Sketcher.Constraint("Vertical", 7, 2, 10, 2),
    Sketcher.Constraint("Equal", 14, 16),
    Sketcher.Constraint("Equal", 16, 18),
    Sketcher.Constraint("Equal", 0, 38),
    Sketcher.Constraint("Equal", 1, 3),
    Sketcher.Constraint("Equal", 3, 5),
    Sketcher.Constraint("Equal", 5, 7),
    Sketcher.Constraint("Equal", 7, 9),
    Sketcher.Constraint("Equal", 9, 11),
    Sketcher.Constraint("Equal", 36, 15),
    Sketcher.Constraint("Equal", 39, 41),
    Sketcher.Constraint("DistanceX", 0, 1, 0, 2, Q("23 mm")),
    Sketcher.Constraint("DistanceX", 2, 2, 2, 1, Q("3 mm")),
    Sketcher.Constraint("DistanceX", 14, 2, 14, 1, Q("71 mm")),
    Sketcher.Constraint("DistanceX", 40, 1, 40, 2, Q("330 mm")),
    Sketcher.Constraint("DistanceY", 1, 1, 1, 2, Q("67 mm")),
    Sketcher.Constraint("DistanceY", 13, 1, 13, 2, Q("66 mm")),
])
pad3 = body3.newObject("PartDesign::Pad", "Pad002")
pad3.Profile = sketch3
pad3.Length = 3
pad3.Reversed = True
body4 = doc.addObject("PartDesign::Body", "Body003")

sketch4 = body4.newObject("Sketcher::SketchObject", "Sketch003")
sketch4.AttachmentSupport = (doc.getObject("YZ_Plane003"), [""])
sketch4.MapMode = "FlatFace"
sketch4.addGeometry([
    Part.LineSegment(Vector(-35, 234, 0), Vector(-104, 234, 0)),
    Part.LineSegment(Vector(-104, 234, 0), Vector(-104, 231, 0)),
    Part.LineSegment(Vector(-104, 231, 0), Vector(-170, 231, 0)),
    Part.LineSegment(Vector(-170, 231, 0), Vector(-170, 168, 0)),
    Part.LineSegment(Vector(-170, 168, 0), Vector(-173, 168, 0)),
    Part.LineSegment(Vector(-173, 168, 0), Vector(-173, 101, 0)),
    Part.LineSegment(Vector(-173, 101, 0), Vector(-170, 101, 0)),
    Part.LineSegment(Vector(-170, 101, 0), Vector(-170, 34, 0)),
    Part.LineSegment(Vector(-170, 34, 0), Vector(-173, 34, 0)),
    Part.LineSegment(Vector(-173, 34, 0), Vector(-173, -33, 0)),
    Part.LineSegment(Vector(-173, -33, 0), Vector(-170, -33, 0)),
    Part.LineSegment(Vector(-170, -33, 0), Vector(-170, -100, 0)),
    Part.LineSegment(Vector(-170, -100, 0), Vector(-173, -100, 0)),
    Part.LineSegment(Vector(-173, -100, 0), Vector(-173, -167, 0)),
    Part.LineSegment(Vector(-173, -167, 0), Vector(-170, -167, 0)),
    Part.LineSegment(Vector(-170, -167, 0), Vector(-170, -234, 0)),
    Part.LineSegment(Vector(-170, -234, 0), Vector(-150, -234, 0)),
    Part.LineSegment(Vector(-150, -234, 0), Vector(-125, -209, 0)),
    Part.LineSegment(Vector(-125, -209, 0), Vector(125, -209, 0)),
    Part.LineSegment(Vector(125, -209, 0), Vector(150, -234, 0)),
    Part.LineSegment(Vector(150, -234, 0), Vector(170, -234, 0)),
    Part.LineSegment(Vector(170, -234, 0), Vector(170, -167, 0)),
    Part.LineSegment(Vector(170, -167, 0), Vector(173, -167, 0)),
    Part.LineSegment(Vector(173, -167, 0), Vector(173, -100, 0)),
    Part.LineSegment(Vector(173, -100, 0), Vector(170, -100, 0)),
    Part.LineSegment(Vector(170, -100, 0), Vector(170, -33, 0)),
    Part.LineSegment(Vector(170, -33, 0), Vector(173, -33, 0)),
    Part.LineSegment(Vector(173, -33, 0), Vector(173, 34, 0)),
    Part.LineSegment(Vector(173, 34, 0), Vector(170, 34, 0)),
    Part.LineSegment(Vector(170, 34, 0), Vector(170, 101, 0)),
    Part.LineSegment(Vector(170, 101, 0), Vector(173, 101, 0)),
    Part.LineSegment(Vector(173, 101, 0), Vector(173, 168, 0)),
    Part.LineSegment(Vector(173, 168, 0), Vector(170, 168, 0)),
    Part.LineSegment(Vector(170, 168, 0), Vector(170, 231, 0)),
    Part.LineSegment(Vector(170, 231, 0), Vector(103, 231, 0)),
    Part.LineSegment(Vector(103, 231, 0), Vector(103, 234, 0)),
    Part.LineSegment(Vector(103, 234, 0), Vector(34, 234, 0)),
    Part.LineSegment(Vector(34, 234, 0), Vector(34, 231, 0)),
    Part.LineSegment(Vector(34, 231, 0), Vector(-35, 231, 0)),
    Part.LineSegment(Vector(-35, 231, 0), Vector(-35, 234, 0)),
    Part.LineSegment(Vector(-150, 81, 0), Vector(-120, 111, 0)),
    Part.LineSegment(Vector(-120, 111, 0), Vector(120, 111, 0)),
    Part.LineSegment(Vector(120, 111, 0), Vector(150, 81, 0)),
    Part.LineSegment(Vector(150, 81, 0), Vector(150, -156, 0)),
    Part.LineSegment(Vector(150, -156, 0), Vector(120, -186, 0)),
    Part.LineSegment(Vector(120, -186, 0), Vector(-120, -186, 0)),
    Part.LineSegment(Vector(-120, -186, 0), Vector(-150, -156, 0)),
    Part.LineSegment(Vector(-150, -156, 0), Vector(-150, 81, 0)),
], False)
sketch4.addConstraint([
    Sketcher.Constraint("Coincident", 0, 2, 1, 1),
    Sketcher.Constraint("Coincident", 1, 2, 2, 1),
    Sketcher.Constraint("Coincident", 2, 2, 3, 1),
    Sketcher.Constraint("Coincident", 3, 2, 4, 1),
    Sketcher.Constraint("Coincident", 4, 2, 5, 1),
    Sketcher.Constraint("Coincident", 5, 2, 6, 1),
    Sketcher.Constraint("Coincident", 6, 2, 7, 1),
    Sketcher.Constraint("Coincident", 7, 2, 8, 1),
    Sketcher.Constraint("Coincident", 8, 2, 9, 1),
    Sketcher.Constraint("Coincident", 9, 2, 10, 1),
    Sketcher.Constraint("Coincident", 10, 2, 11, 1),
    Sketcher.Constraint("Coincident", 11, 2, 12, 1),
    Sketcher.Constraint("Coincident", 12, 2, 13, 1),
    Sketcher.Constraint("Coincident", 13, 2, 14, 1),
    Sketcher.Constraint("Coincident", 14, 2, 15, 1),
    Sketcher.Constraint("Coincident", 15, 2, 16, 1),
    Sketcher.Constraint("Coincident", 16, 2, 17, 1),
    Sketcher.Constraint("Coincident", 17, 2, 18, 1),
    Sketcher.Constraint("Coincident", 18, 2, 19, 1),
    Sketcher.Constraint("Coincident", 19, 2, 20, 1),
    Sketcher.Constraint("Coincident", 20, 2, 21, 1),
    Sketcher.Constraint("Coincident", 21, 2, 22, 1),
    Sketcher.Constraint("Coincident", 22, 2, 23, 1),
    Sketcher.Constraint("Coincident", 23, 2, 24, 1),
    Sketcher.Constraint("Coincident", 24, 2, 25, 1),
    Sketcher.Constraint("Coincident", 25, 2, 26, 1),
    Sketcher.Constraint("Coincident", 26, 2, 27, 1),
    Sketcher.Constraint("Coincident", 27, 2, 28, 1),
    Sketcher.Constraint("Coincident", 28, 2, 29, 1),
    Sketcher.Constraint("Coincident", 29, 2, 30, 1),
    Sketcher.Constraint("Coincident", 30, 2, 31, 1),
    Sketcher.Constraint("Coincident", 31, 2, 32, 1),
    Sketcher.Constraint("Coincident", 32, 2, 33, 1),
    Sketcher.Constraint("Coincident", 33, 2, 34, 1),
    Sketcher.Constraint("Coincident", 34, 2, 35, 1),
    Sketcher.Constraint("Coincident", 35, 2, 36, 1),
    Sketcher.Constraint("Coincident", 36, 2, 37, 1),
    Sketcher.Constraint("Coincident", 37, 2, 38, 1),
    Sketcher.Constraint("Coincident", 38, 2, 39, 1),
    Sketcher.Constraint("Coincident", 39, 2, 0, 1),
    Sketcher.Constraint("Coincident", 40, 2, 41, 1),
    Sketcher.Constraint("Coincident", 41, 2, 42, 1),
    Sketcher.Constraint("Coincident", 42, 2, 43, 1),
    Sketcher.Constraint("Coincident", 43, 2, 44, 1),
    Sketcher.Constraint("Coincident", 44, 2, 45, 1),
    Sketcher.Constraint("Coincident", 45, 2, 46, 1),
    Sketcher.Constraint("Coincident", 46, 2, 47, 1),
    Sketcher.Constraint("Coincident", 47, 2, 40, 1),
    Sketcher.Constraint("Horizontal", 0),
    Sketcher.Constraint("Vertical", 1),
    Sketcher.Constraint("Horizontal", 2),
    Sketcher.Constraint("Vertical", 3),
    Sketcher.Constraint("Horizontal", 4),
    Sketcher.Constraint("Vertical", 5),
    Sketcher.Constraint("Horizontal", 6),
    Sketcher.Constraint("Vertical", 7),
    Sketcher.Constraint("Horizontal", 8),
    Sketcher.Constraint("Vertical", 9),
    Sketcher.Constraint("Horizontal", 10),
    Sketcher.Constraint("Vertical", 11),
    Sketcher.Constraint("Horizontal", 12),
    Sketcher.Constraint("Vertical", 13),
    Sketcher.Constraint("Horizontal", 14),
    Sketcher.Constraint("Vertical", 15),
    Sketcher.Constraint("Horizontal", 16),
    Sketcher.Constraint("Horizontal", 18),
    Sketcher.Constraint("Horizontal", 20),
    Sketcher.Constraint("Vertical", 21),
    Sketcher.Constraint("Horizontal", 22),
    Sketcher.Constraint("Vertical", 23),
    Sketcher.Constraint("Horizontal", 24),
    Sketcher.Constraint("Vertical", 25),
    Sketcher.Constraint("Horizontal", 26),
    Sketcher.Constraint("Vertical", 27),
    Sketcher.Constraint("Horizontal", 28),
    Sketcher.Constraint("Vertical", 29),
    Sketcher.Constraint("Horizontal", 30),
    Sketcher.Constraint("Vertical", 31),
    Sketcher.Constraint("Horizontal", 32),
    Sketcher.Constraint("Vertical", 33),
    Sketcher.Constraint("Horizontal", 34),
    Sketcher.Constraint("Vertical", 35),
    Sketcher.Constraint("Horizontal", 36),
    Sketcher.Constraint("Vertical", 37),
    Sketcher.Constraint("Horizontal", 38),
    Sketcher.Constraint("Vertical", 39),
    Sketcher.Constraint("Horizontal", 41),
    Sketcher.Constraint("Vertical", 43),
    Sketcher.Constraint("Horizontal", 45),
    Sketcher.Constraint("Vertical", 47),
    Sketcher.Constraint("Symmetric", 16, 2, 19, 2, -2),
    Sketcher.Constraint("Symmetric", 14, 2, 21, 2, -2),
    Sketcher.Constraint("Symmetric", 12, 2, 23, 2, -2),
    Sketcher.Constraint("Symmetric", 10, 2, 25, 2, -2),
    Sketcher.Constraint("Symmetric", 8, 2, 27, 2, -2),
    Sketcher.Constraint("Symmetric", 6, 2, 29, 2, -2),
    Sketcher.Constraint("Symmetric", 4, 2, 31, 2, -2),
    Sketcher.Constraint("Symmetric", 2, 2, 33, 2, -2),
    Sketcher.Constraint("Symmetric", 43, 2, 46, 2, -2),
    Sketcher.Constraint("Perpendicular", 17, 19),
    Sketcher.Constraint("Perpendicular", 19, 40),
    Sketcher.Constraint("Perpendicular", 40, 42),
    Sketcher.Constraint("Perpendicular", 42, 44),
    Sketcher.Constraint("Perpendicular", 44, 46),
    Sketcher.Constraint("Horizontal", 0, 2, 35, 2),
    Sketcher.Constraint("Horizontal", 34, 2, 37, 2),
    Sketcher.Constraint("Horizontal", 42, 2, 47, 2),
    Sketcher.Constraint("Vertical", 3, 2, 6, 2),
    Sketcher.Constraint("Vertical", 5, 2, 8, 2),
    Sketcher.Constraint("Vertical", 7, 2, 10, 2),
    Sketcher.Constraint("Vertical", 9, 2, 12, 2),
    Sketcher.Constraint("Vertical", 11, 2, 14, 2),
    Sketcher.Constraint("Vertical", 19, 2, 42, 2),
    Sketcher.Constraint("Vertical", 41, 2, 44, 2),
    Sketcher.Constraint("Vertical", 40, 2, 45, 2),
    Sketcher.Constraint("Equal", 0, 36),
    Sketcher.Constraint("Equal", 36, 38),
    Sketcher.Constraint("Equal", 32, 1),
    Sketcher.Constraint("Equal", 34, 5),
    Sketcher.Constraint("Equal", 5, 7),
    Sketcher.Constraint("Equal", 7, 9),
    Sketcher.Constraint("Equal", 9, 11),
    Sketcher.Constraint("Equal", 11, 13),
    Sketcher.Constraint("Equal", 13, 15),
    Sketcher.Constraint("DistanceX", 0, 2, 0, 1, Q("69 mm")),
    Sketcher.Constraint("DistanceX", 2, 2, 2, 1, Q("66 mm")),
    Sketcher.Constraint("DistanceX", 4, 2, 4, 1, Q("3 mm")),
    Sketcher.Constraint("DistanceX", 16, 1, 16, 2, Q("20 mm")),
    Sketcher.Constraint("DistanceX", 18, 1, 18, 2, Q("250 mm")),
    Sketcher.Constraint("DistanceX", 34, 2, 34, 1, Q("67 mm")),
    Sketcher.Constraint("DistanceX", 41, 1, 41, 2, Q("240 mm")),
    Sketcher.Constraint("DistanceY", 3, 2, 3, 1, Q("63 mm")),
    Sketcher.Constraint("DistanceY", 43, 2, 43, 1, Q("237 mm")),
    Sketcher.Constraint("DistanceY", -1, 1, 0, 2, Q("234 mm")),
    Sketcher.Constraint("DistanceY", -1, 1, 40, 2, Q("111 mm")),
])
pad4 = body4.newObject("PartDesign::Pad", "Pad003")
pad4.Profile = sketch4
pad4.Length = 3
body5 = doc.addObject("PartDesign::Body", "Body004")

sketch5 = body5.newObject("Sketcher::SketchObject", "Sketch004")
sketch5.AttachmentSupport = (doc.getObject("XY_Plane004"), [""])
sketch5.MapMode = "FlatFace"
sketch5.addGeometry([
    Part.ArcOfCircle(Part.Circle(Vector(190, -150, 0), Vector(0, 0, 1), 15), math.radians(90), math.radians(180)),
    Part.LineSegment(Vector(190, -135, 0), Vector(190, -90, 0)),
    Part.LineSegment(Vector(190, -90, 0), Vector(210, -90, 0)),
    Part.LineSegment(Vector(210, -90, 0), Vector(210, 120, 0)),
    Part.LineSegment(Vector(210, 120, 0), Vector(190, 120, 0)),
    Part.LineSegment(Vector(190, 120, 0), Vector(190, 135, 0)),
    Part.ArcOfCircle(Part.Circle(Vector(190, 150, 0), Vector(0, 0, 1), 15), math.radians(180), math.radians(270)),
    Part.LineSegment(Vector(175, 150, 0), Vector(36.1, 150, 0)),
    Part.LineSegment(Vector(36.1, 150, 0), Vector(36.1, 147, 0)),
    Part.LineSegment(Vector(36.1, 147, 0), Vector(23.1, 147, 0)),
    Part.LineSegment(Vector(23.1, 147, 0), Vector(23.1, 107.7, 0)),
    Part.LineSegment(Vector(23.1, 107.7, 0), Vector(-23.1, 107.7, 0)),
    Part.LineSegment(Vector(-23.1, 107.7, 0), Vector(-23.1, 147, 0)),
    Part.LineSegment(Vector(-23.1, 147, 0), Vector(-36.1, 147, 0)),
    Part.LineSegment(Vector(-36.1, 147, 0), Vector(-36.1, 150, 0)),
    Part.LineSegment(Vector(-36.1, 150, 0), Vector(-175, 150, 0)),
    Part.ArcOfCircle(Part.Circle(Vector(-190, 150, 0), Vector(0, 0, 1), 15), math.radians(-90), math.radians(0)),
    Part.LineSegment(Vector(-190, 135, 0), Vector(-190, 90, 0)),
    Part.LineSegment(Vector(-190, 90, 0), Vector(-210, 90, 0)),
    Part.LineSegment(Vector(-210, 90, 0), Vector(-210, -120, 0)),
    Part.LineSegment(Vector(-210, -120, 0), Vector(-190, -120, 0)),
    Part.LineSegment(Vector(-190, -120, 0), Vector(-190, -135, 0)),
    Part.ArcOfCircle(Part.Circle(Vector(-190, -150, 0), Vector(0, 0, 1), 15), math.radians(0), math.radians(90)),
    Part.LineSegment(Vector(-175, -150, 0), Vector(-160, -150, 0)),
    Part.LineSegment(Vector(-160, -150, 0), Vector(-160, -170, 0)),
    Part.LineSegment(Vector(-160, -170, 0), Vector(160, -170, 0)),
    Part.LineSegment(Vector(160, -170, 0), Vector(160, -150, 0)),
    Part.LineSegment(Vector(160, -150, 0), Vector(175, -150, 0)),
], False)
sketch5.addConstraint([
    Sketcher.Constraint("Coincident", 0, 1, 1, 1),
    Sketcher.Constraint("Coincident", 1, 2, 2, 1),
    Sketcher.Constraint("Coincident", 2, 2, 3, 1),
    Sketcher.Constraint("Coincident", 3, 2, 4, 1),
    Sketcher.Constraint("Coincident", 4, 2, 5, 1),
    Sketcher.Constraint("Coincident", 5, 2, 6, 2),
    Sketcher.Constraint("Coincident", 6, 1, 7, 1),
    Sketcher.Constraint("Coincident", 7, 2, 8, 1),
    Sketcher.Constraint("Coincident", 8, 2, 9, 1),
    Sketcher.Constraint("Coincident", 9, 2, 10, 1),
    Sketcher.Constraint("Coincident", 10, 2, 11, 1),
    Sketcher.Constraint("Coincident", 11, 2, 12, 1),
    Sketcher.Constraint("Coincident", 12, 2, 13, 1),
    Sketcher.Constraint("Coincident", 13, 2, 14, 1),
    Sketcher.Constraint("Coincident", 14, 2, 15, 1),
    Sketcher.Constraint("Coincident", 15, 2, 16, 2),
    Sketcher.Constraint("Coincident", 16, 1, 17, 1),
    Sketcher.Constraint("Coincident", 17, 2, 18, 1),
    Sketcher.Constraint("Coincident", 18, 2, 19, 1),
    Sketcher.Constraint("Coincident", 19, 2, 20, 1),
    Sketcher.Constraint("Coincident", 20, 2, 21, 1),
    Sketcher.Constraint("Coincident", 21, 2, 22, 2),
    Sketcher.Constraint("Coincident", 22, 1, 23, 1),
    Sketcher.Constraint("Coincident", 23, 2, 24, 1),
    Sketcher.Constraint("Coincident", 24, 2, 25, 1),
    Sketcher.Constraint("Coincident", 25, 2, 26, 1),
    Sketcher.Constraint("Coincident", 26, 2, 27, 1),
    Sketcher.Constraint("Coincident", 27, 2, 0, 2),
    Sketcher.Constraint("Vertical", 1),
    Sketcher.Constraint("Horizontal", 2),
    Sketcher.Constraint("Vertical", 3),
    Sketcher.Constraint("Horizontal", 4),
    Sketcher.Constraint("Vertical", 5),
    Sketcher.Constraint("Horizontal", 7),
    Sketcher.Constraint("Vertical", 8),
    Sketcher.Constraint("Horizontal", 9),
    Sketcher.Constraint("Vertical", 10),
    Sketcher.Constraint("Horizontal", 11),
    Sketcher.Constraint("Vertical", 12),
    Sketcher.Constraint("Horizontal", 13),
    Sketcher.Constraint("Vertical", 14),
    Sketcher.Constraint("Horizontal", 15),
    Sketcher.Constraint("Vertical", 17),
    Sketcher.Constraint("Horizontal", 18),
    Sketcher.Constraint("Vertical", 19),
    Sketcher.Constraint("Horizontal", 20),
    Sketcher.Constraint("Vertical", 21),
    Sketcher.Constraint("Horizontal", 23),
    Sketcher.Constraint("Vertical", 24),
    Sketcher.Constraint("Horizontal", 25),
    Sketcher.Constraint("Vertical", 26),
    Sketcher.Constraint("Horizontal", 27),
    Sketcher.Constraint("Equal", 0, 6),
    Sketcher.Constraint("Equal", 6, 16),
    Sketcher.Constraint("Equal", 16, 22),
    Sketcher.Constraint("Symmetric", 0, 3, 16, 3, -1, 1),
    Sketcher.Constraint("Symmetric", 6, 3, 22, 3, -1, 1),
    Sketcher.Constraint("Symmetric", 1, 2, 17, 2, -1, 1),
    Sketcher.Constraint("Symmetric", 3, 2, 19, 2, -1, 1),
    Sketcher.Constraint("Symmetric", 6, 3, 16, 3, -2),
    Sketcher.Constraint("Symmetric", 9, 2, 12, 2, -2),
    Sketcher.Constraint("Symmetric", 7, 2, 14, 2, -2),
    Sketcher.Constraint("Symmetric", 23, 2, 26, 2, -2),
    Sketcher.Constraint("Horizontal", 16, 3, 6, 1),
    Sketcher.Constraint("Horizontal", 0, 3, 22, 1),
    Sketcher.Constraint("Vertical", 6, 3, 0, 1),
    Sketcher.Constraint("Vertical", 1, 2, 4, 2),
    Sketcher.Constraint("Vertical", 17, 2, 20, 2),
    Sketcher.Constraint("Equal", 27, 5),
    Sketcher.Constraint("Equal", 20, 24),
    Sketcher.Constraint("Radius", 0, Q("15 mm")),
    Sketcher.Constraint("DistanceX", 2, 1, 2, 2, Q("20 mm")),
    Sketcher.Constraint("DistanceX", 9, 2, 9, 1, Q("13 mm")),
    Sketcher.Constraint("DistanceX", 23, 1, 23, 2, Q("15 mm")),
    Sketcher.Constraint("DistanceX", 25, 1, 25, 2, Q("320 mm")),
    Sketcher.Constraint("DistanceY", 1, 1, 1, 2, Q("45 mm")),
    Sketcher.Constraint("DistanceY", 3, 1, 3, 2, Q("210 mm")),
    Sketcher.Constraint("DistanceY", 8, 2, 8, 1, Q("3 mm")),
    Sketcher.Constraint("DistanceX", 11, 2, 11, 1, Q("46.3 mm")),
    Sketcher.Constraint("DistanceY", 10, 2, 10, 1, Q("39.3 mm")),
])
pad5 = body5.newObject("PartDesign::Pad", "Pad004")
pad5.Profile = sketch5
pad5.Length = 3

doc.recompute()
